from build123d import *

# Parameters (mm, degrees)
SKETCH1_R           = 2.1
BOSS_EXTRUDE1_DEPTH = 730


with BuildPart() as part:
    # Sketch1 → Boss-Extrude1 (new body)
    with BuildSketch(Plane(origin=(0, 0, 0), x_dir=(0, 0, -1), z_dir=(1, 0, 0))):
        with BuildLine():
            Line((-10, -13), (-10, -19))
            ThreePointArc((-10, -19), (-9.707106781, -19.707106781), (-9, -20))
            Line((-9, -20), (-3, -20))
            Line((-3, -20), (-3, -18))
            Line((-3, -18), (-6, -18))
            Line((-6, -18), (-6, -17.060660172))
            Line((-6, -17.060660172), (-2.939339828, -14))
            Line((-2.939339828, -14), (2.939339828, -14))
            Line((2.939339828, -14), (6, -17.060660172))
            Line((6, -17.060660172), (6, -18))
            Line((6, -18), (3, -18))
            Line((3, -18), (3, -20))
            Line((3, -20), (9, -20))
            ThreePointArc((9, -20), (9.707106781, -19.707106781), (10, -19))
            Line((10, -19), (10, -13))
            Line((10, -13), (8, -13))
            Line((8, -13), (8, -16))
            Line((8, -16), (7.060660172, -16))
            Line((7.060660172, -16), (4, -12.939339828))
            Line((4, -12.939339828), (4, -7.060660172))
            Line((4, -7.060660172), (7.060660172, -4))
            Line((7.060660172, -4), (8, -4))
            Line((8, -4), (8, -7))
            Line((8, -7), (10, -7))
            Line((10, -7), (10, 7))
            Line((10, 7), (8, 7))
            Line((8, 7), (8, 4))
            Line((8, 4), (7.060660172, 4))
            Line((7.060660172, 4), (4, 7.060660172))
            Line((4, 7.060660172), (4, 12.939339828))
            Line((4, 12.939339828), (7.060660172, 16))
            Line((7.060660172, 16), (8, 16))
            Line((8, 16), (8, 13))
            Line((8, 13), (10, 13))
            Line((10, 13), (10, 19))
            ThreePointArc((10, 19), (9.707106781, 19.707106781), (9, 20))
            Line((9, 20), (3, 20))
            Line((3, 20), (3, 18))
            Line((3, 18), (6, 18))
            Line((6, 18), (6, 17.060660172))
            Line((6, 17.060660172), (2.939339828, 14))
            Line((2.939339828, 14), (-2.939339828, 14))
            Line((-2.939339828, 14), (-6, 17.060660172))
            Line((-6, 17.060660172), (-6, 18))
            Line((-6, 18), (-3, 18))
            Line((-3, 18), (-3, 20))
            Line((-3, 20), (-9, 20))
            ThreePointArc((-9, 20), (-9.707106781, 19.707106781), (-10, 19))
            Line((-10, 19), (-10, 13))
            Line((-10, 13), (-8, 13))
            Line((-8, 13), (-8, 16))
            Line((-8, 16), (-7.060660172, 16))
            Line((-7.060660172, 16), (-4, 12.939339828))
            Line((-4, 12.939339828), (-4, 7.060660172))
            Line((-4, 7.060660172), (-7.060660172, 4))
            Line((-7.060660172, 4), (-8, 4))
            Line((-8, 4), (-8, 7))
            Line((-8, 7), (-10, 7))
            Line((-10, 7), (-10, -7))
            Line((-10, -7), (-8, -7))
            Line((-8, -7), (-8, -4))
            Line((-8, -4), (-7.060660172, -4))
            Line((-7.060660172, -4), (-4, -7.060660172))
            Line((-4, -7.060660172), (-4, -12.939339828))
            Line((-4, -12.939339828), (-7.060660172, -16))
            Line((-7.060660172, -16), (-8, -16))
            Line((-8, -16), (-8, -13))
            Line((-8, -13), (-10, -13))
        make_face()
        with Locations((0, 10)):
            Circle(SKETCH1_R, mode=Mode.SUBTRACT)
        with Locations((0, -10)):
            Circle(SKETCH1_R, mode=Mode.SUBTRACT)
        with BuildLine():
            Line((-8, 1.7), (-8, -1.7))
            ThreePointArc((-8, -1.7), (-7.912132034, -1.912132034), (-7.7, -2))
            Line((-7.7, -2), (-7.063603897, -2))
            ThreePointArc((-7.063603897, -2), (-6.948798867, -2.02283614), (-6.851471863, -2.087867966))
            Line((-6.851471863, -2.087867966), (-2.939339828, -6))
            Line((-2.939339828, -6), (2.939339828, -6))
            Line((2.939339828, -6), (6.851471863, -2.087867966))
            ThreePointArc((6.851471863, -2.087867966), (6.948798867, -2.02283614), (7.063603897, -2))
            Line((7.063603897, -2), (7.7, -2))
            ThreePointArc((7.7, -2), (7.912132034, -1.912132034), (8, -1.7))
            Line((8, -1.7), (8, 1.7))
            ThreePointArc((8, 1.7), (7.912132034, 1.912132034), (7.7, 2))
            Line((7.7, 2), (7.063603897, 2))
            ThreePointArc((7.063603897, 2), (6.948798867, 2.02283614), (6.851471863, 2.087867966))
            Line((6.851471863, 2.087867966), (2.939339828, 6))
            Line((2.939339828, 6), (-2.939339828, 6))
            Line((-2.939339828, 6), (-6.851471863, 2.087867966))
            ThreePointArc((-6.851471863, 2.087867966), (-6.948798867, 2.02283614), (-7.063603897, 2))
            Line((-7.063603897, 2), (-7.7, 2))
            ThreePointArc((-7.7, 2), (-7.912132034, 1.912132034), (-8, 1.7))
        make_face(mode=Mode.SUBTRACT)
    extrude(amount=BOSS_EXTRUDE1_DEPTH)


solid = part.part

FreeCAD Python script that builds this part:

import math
import FreeCAD as App
import Part
import Sketcher
from FreeCAD import Vector

doc = App.newDocument("Part")
body = doc.addObject("PartDesign::Body", "Body")

# Sketch on YZ plane
sketch1 = doc.addObject("Sketcher::SketchObject", "Sketch")
body.addObject(sketch1)
sketch1.AttachmentSupport = (doc.YZ_Plane, [""])
sketch1.MapMode = "FlatFace"
sketch1.addGeometry([
    Part.LineSegment(Vector(-13, 10, 0), Vector(-19, 10, 0)),  # 0
    Part.ArcOfCircle(Part.Circle(Vector(-19, 9, 0), Vector(0, 0, 1), 1), math.radians(90), math.radians(180)),  # 1
    Part.LineSegment(Vector(-20, 9, 0), Vector(-20, 3, 0)),  # 2
    Part.LineSegment(Vector(-20, 3, 0), Vector(-18, 3, 0)),  # 3
    Part.LineSegment(Vector(-18, 3, 0), Vector(-18, 6, 0)),  # 4
    Part.LineSegment(Vector(-18, 6, 0), Vector(-17.06, 6, 0)),  # 5
    Part.LineSegment(Vector(-17.06, 6, 0), Vector(-14, 2.94, 0)),  # 6
    Part.LineSegment(Vector(-14, 2.94, 0), Vector(-14, -2.94, 0)),  # 7
    Part.LineSegment(Vector(-14, -2.94, 0), Vector(-17.06, -6, 0)),  # 8
    Part.LineSegment(Vector(-17.06, -6, 0), Vector(-18, -6, 0)),  # 9
    Part.LineSegment(Vector(-18, -6, 0), Vector(-18, -3, 0)),  # 10
    Part.LineSegment(Vector(-18, -3, 0), Vector(-20, -3, 0)),  # 11
    Part.LineSegment(Vector(-20, -3, 0), Vector(-20, -9, 0)),  # 12
    Part.ArcOfCircle(Part.Circle(Vector(-19, -9, 0), Vector(0, 0, 1), 1), math.radians(-180), math.radians(-90)),  # 13
    Part.LineSegment(Vector(-19, -10, 0), Vector(-13, -10, 0)),  # 14
    Part.LineSegment(Vector(-13, -10, 0), Vector(-13, -8, 0)),  # 15
    Part.LineSegment(Vector(-13, -8, 0), Vector(-16, -8, 0)),  # 16
    Part.LineSegment(Vector(-16, -8, 0), Vector(-16, -7.06, 0)),  # 17
    Part.LineSegment(Vector(-16, -7.06, 0), Vector(-12.94, -4, 0)),  # 18
    Part.LineSegment(Vector(-12.94, -4, 0), Vector(-7.06, -4, 0)),  # 19
    Part.LineSegment(Vector(-7.06, -4, 0), Vector(-4, -7.06, 0)),  # 20
    Part.LineSegment(Vector(-4, -7.06, 0), Vector(-4, -8, 0)),  # 21
    Part.LineSegment(Vector(-4, -8, 0), Vector(-7, -8, 0)),  # 22
    Part.LineSegment(Vector(-7, -8, 0), Vector(-7, -10, 0)),  # 23
    Part.LineSegment(Vector(-7, -10, 0), Vector(7, -10, 0)),  # 24
    Part.LineSegment(Vector(7, -10, 0), Vector(7, -8, 0)),  # 25
    Part.LineSegment(Vector(7, -8, 0), Vector(4, -8, 0)),  # 26
    Part.LineSegment(Vector(4, -8, 0), Vector(4, -7.06, 0)),  # 27
    Part.LineSegment(Vector(4, -7.06, 0), Vector(7.06, -4, 0)),  # 28
    Part.LineSegment(Vector(7.06, -4, 0), Vector(12.94, -4, 0)),  # 29
    Part.LineSegment(Vector(12.94, -4, 0), Vector(16, -7.06, 0)),  # 30
    Part.LineSegment(Vector(16, -7.06, 0), Vector(16, -8, 0)),  # 31
    Part.LineSegment(Vector(16, -8, 0), Vector(13, -8, 0)),  # 32
    Part.LineSegment(Vector(13, -8, 0), Vector(13, -10, 0)),  # 33
    Part.LineSegment(Vector(13, -10, 0), Vector(19, -10, 0)),  # 34
    Part.ArcOfCircle(Part.Circle(Vector(19, -9, 0), Vector(0, 0, 1), 1), math.radians(-90), math.radians(0)),  # 35
    Part.LineSegment(Vector(20, -9, 0), Vector(20, -3, 0)),  # 36
    Part.LineSegment(Vector(20, -3, 0), Vector(18, -3, 0)),  # 37
    Part.LineSegment(Vector(18, -3, 0), Vector(18, -6, 0)),  # 38
    Part.LineSegment(Vector(18, -6, 0), Vector(17.06, -6, 0)),  # 39
    Part.LineSegment(Vector(17.06, -6, 0), Vector(14, -2.94, 0)),  # 40
    Part.LineSegment(Vector(14, -2.94, 0), Vector(14, 2.94, 0)),  # 41
    Part.LineSegment(Vector(14, 2.94, 0), Vector(17.06, 6, 0)),  # 42
    Part.LineSegment(Vector(17.06, 6, 0), Vector(18, 6, 0)),  # 43
    Part.LineSegment(Vector(18, 6, 0), Vector(18, 3, 0)),  # 44
    Part.LineSegment(Vector(18, 3, 0), Vector(20, 3, 0)),  # 45
    Part.LineSegment(Vector(20, 3, 0), Vector(20, 9, 0)),  # 46
    Part.ArcOfCircle(Part.Circle(Vector(19, 9, 0), Vector(0, 0, 1), 1), math.radians(0), math.radians(90)),  # 47
    Part.LineSegment(Vector(19, 10, 0), Vector(13, 10, 0)),  # 48
    Part.LineSegment(Vector(13, 10, 0), Vector(13, 8, 0)),  # 49
    Part.LineSegment(Vector(13, 8, 0), Vector(16, 8, 0)),  # 50
    Part.LineSegment(Vector(16, 8, 0), Vector(16, 7.06, 0)),  # 51
    Part.LineSegment(Vector(16, 7.06, 0), Vector(12.94, 4, 0)),  # 52
    Part.LineSegment(Vector(12.94, 4, 0), Vector(7.06, 4, 0)),  # 53
    Part.LineSegment(Vector(7.06, 4, 0), Vector(4, 7.06, 0)),  # 54
    Part.LineSegment(Vector(4, 7.06, 0), Vector(4, 8, 0)),  # 55
    Part.LineSegment(Vector(4, 8, 0), Vector(7, 8, 0)),  # 56
    Part.LineSegment(Vector(7, 8, 0), Vector(7, 10, 0)),  # 57
    Part.LineSegment(Vector(7, 10, 0), Vector(-7, 10, 0)),  # 58
    Part.LineSegment(Vector(-7, 10, 0), Vector(-7, 8, 0)),  # 59
    Part.LineSegment(Vector(-7, 8, 0), Vector(-4, 8, 0)),  # 60
    Part.LineSegment(Vector(-4, 8, 0), Vector(-4, 7.06, 0)),  # 61
    Part.LineSegment(Vector(-4, 7.06, 0), Vector(-7.06, 4, 0)),  # 62
    Part.LineSegment(Vector(-7.06, 4, 0), Vector(-12.94, 4, 0)),  # 63
    Part.LineSegment(Vector(-12.94, 4, 0), Vector(-16, 7.06, 0)),  # 64
    Part.LineSegment(Vector(-16, 7.06, 0), Vector(-16, 8, 0)),  # 65
    Part.LineSegment(Vector(-16, 8, 0), Vector(-13, 8, 0)),  # 66
    Part.LineSegment(Vector(-13, 8, 0), Vector(-13, 10, 0)),  # 67
    Part.Circle(Vector(-10, 0, 0), Vector(0, 0, 1), 2.1),  # 68
    Part.LineSegment(Vector(-1.7, 8, 0), Vector(1.7, 8, 0)),  # 69
    Part.ArcOfCircle(Part.Circle(Vector(1.7, 7.7, 0), Vector(0, 0, 1), 0.3), math.radians(0), math.radians(90)),  # 70
    Part.LineSegment(Vector(2, 7.7, 0), Vector(2, 7.06, 0)),  # 71
    Part.ArcOfCircle(Part.Circle(Vector(2.3, 7.06, 0), Vector(0, 0, 1), 0.3), math.radians(180), math.radians(225)),  # 72
    Part.LineSegment(Vector(2.09, 6.85, 0), Vector(6, 2.94, 0)),  # 73
    Part.LineSegment(Vector(6, 2.94, 0), Vector(6, -2.94, 0)),  # 74
    Part.LineSegment(Vector(6, -2.94, 0), Vector(2.09, -6.85, 0)),  # 75
    Part.ArcOfCircle(Part.Circle(Vector(2.3, -7.06, 0), Vector(0, 0, 1), 0.3), math.radians(135), math.radians(180)),  # 76
    Part.LineSegment(Vector(2, -7.06, 0), Vector(2, -7.7, 0)),  # 77
    Part.ArcOfCircle(Part.Circle(Vector(1.7, -7.7, 0), Vector(0, 0, 1), 0.3), math.radians(-90), math.radians(0)),  # 78
    Part.LineSegment(Vector(1.7, -8, 0), Vector(-1.7, -8, 0)),  # 79
    Part.ArcOfCircle(Part.Circle(Vector(-1.7, -7.7, 0), Vector(0, 0, 1), 0.3), math.radians(-180), math.radians(-90)),  # 80
    Part.LineSegment(Vector(-2, -7.7, 0), Vector(-2, -7.06, 0)),  # 81
    Part.ArcOfCircle(Part.Circle(Vector(-2.3, -7.06, 0), Vector(0, 0, 1), 0.3), math.radians(0), math.radians(45)),  # 82
    Part.LineSegment(Vector(-2.09, -6.85, 0), Vector(-6, -2.94, 0)),  # 83
    Part.LineSegment(Vector(-6, -2.94, 0), Vector(-6, 2.94, 0)),  # 84
    Part.LineSegment(Vector(-6, 2.94, 0), Vector(-2.09, 6.85, 0)),  # 85
    Part.ArcOfCircle(Part.Circle(Vector(-2.3, 7.06, 0), Vector(0, 0, 1), 0.3), math.radians(-45), math.radians(0)),  # 86
    Part.LineSegment(Vector(-2, 7.06, 0), Vector(-2, 7.7, 0)),  # 87
    Part.ArcOfCircle(Part.Circle(Vector(-1.7, 7.7, 0), Vector(0, 0, 1), 0.3), math.radians(90), math.radians(180)),  # 88
    Part.Circle(Vector(10, 0, 0), Vector(0, 0, 1), 2.1),  # 89
], False)
sketch1.addConstraint([
    Sketcher.Constraint("Tangent", 0, 2, 1, 1),
    Sketcher.Constraint("Tangent", 1, 2, 2, 1),
    Sketcher.Constraint("Coincident", 2, 2, 3, 1),
    Sketcher.Constraint("Coincident", 3, 2, 4, 1),
    Sketcher.Constraint("Coincident", 4, 2, 5, 1),
    Sketcher.Constraint("Coincident", 5, 2, 6, 1),
    Sketcher.Constraint("Coincident", 6, 2, 7, 1),
    Sketcher.Constraint("Coincident", 7, 2, 8, 1),
    Sketcher.Constraint("Coincident", 8, 2, 9, 1),
    Sketcher.Constraint("Coincident", 9, 2, 10, 1),
    Sketcher.Constraint("Coincident", 10, 2, 11, 1),
    Sketcher.Constraint("Coincident", 11, 2, 12, 1),
    Sketcher.Constraint("Tangent", 12, 2, 13, 1),
    Sketcher.Constraint("Tangent", 13, 2, 14, 1),
    Sketcher.Constraint("Coincident", 14, 2, 15, 1),
    Sketcher.Constraint("Coincident", 15, 2, 16, 1),
    Sketcher.Constraint("Coincident", 16, 2, 17, 1),
    Sketcher.Constraint("Coincident", 17, 2, 18, 1),
    Sketcher.Constraint("Coincident", 18, 2, 19, 1),
    Sketcher.Constraint("Coincident", 19, 2, 20, 1),
    Sketcher.Constraint("Coincident", 20, 2, 21, 1),
    Sketcher.Constraint("Coincident", 21, 2, 22, 1),
    Sketcher.Constraint("Coincident", 22, 2, 23, 1),
    Sketcher.Constraint("Coincident", 23, 2, 24, 1),
    Sketcher.Constraint("Coincident", 24, 2, 25, 1),
    Sketcher.Constraint("Coincident", 25, 2, 26, 1),
    Sketcher.Constraint("Coincident", 26, 2, 27, 1),
    Sketcher.Constraint("Coincident", 27, 2, 28, 1),
    Sketcher.Constraint("Coincident", 28, 2, 29, 1),
    Sketcher.Constraint("Coincident", 29, 2, 30, 1),
    Sketcher.Constraint("Coincident", 30, 2, 31, 1),
    Sketcher.Constraint("Coincident", 31, 2, 32, 1),
    Sketcher.Constraint("Coincident", 32, 2, 33, 1),
    Sketcher.Constraint("Coincident", 33, 2, 34, 1),
    Sketcher.Constraint("Tangent", 34, 2, 35, 1),
    Sketcher.Constraint("Tangent", 35, 2, 36, 1),
    Sketcher.Constraint("Coincident", 36, 2, 37, 1),
    Sketcher.Constraint("Coincident", 37, 2, 38, 1),
    Sketcher.Constraint("Coincident", 38, 2, 39, 1),
    Sketcher.Constraint("Coincident", 39, 2, 40, 1),
    Sketcher.Constraint("Coincident", 40, 2, 41, 1),
    Sketcher.Constraint("Coincident", 41, 2, 42, 1),
    Sketcher.Constraint("Coincident", 42, 2, 43, 1),
    Sketcher.Constraint("Coincident", 43, 2, 44, 1),
    Sketcher.Constraint("Coincident", 44, 2, 45, 1),
    Sketcher.Constraint("Coincident", 45, 2, 46, 1),
    Sketcher.Constraint("Tangent", 46, 2, 47, 1),
    Sketcher.Constraint("Tangent", 47, 2, 48, 1),
    Sketcher.Constraint("Coincident", 48, 2, 49, 1),
    Sketcher.Constraint("Coincident", 49, 2, 50, 1),
    Sketcher.Constraint("Coincident", 50, 2, 51, 1),
    Sketcher.Constraint("Coincident", 51, 2, 52, 1),
    Sketcher.Constraint("Coincident", 52, 2, 53, 1),
    Sketcher.Constraint("Coincident", 53, 2, 54, 1),
    Sketcher.Constraint("Coincident", 54, 2, 55, 1),
    Sketcher.Constraint("Coincident", 55, 2, 56, 1),
    Sketcher.Constraint("Coincident", 56, 2, 57, 1),
    Sketcher.Constraint("Coincident", 57, 2, 58, 1),
    Sketcher.Constraint("Coincident", 58, 2, 59, 1),
    Sketcher.Constraint("Coincident", 59, 2, 60, 1),
    Sketcher.Constraint("Coincident", 60, 2, 61, 1),
    Sketcher.Constraint("Coincident", 61, 2, 62, 1),
    Sketcher.Constraint("Coincident", 62, 2, 63, 1),
    Sketcher.Constraint("Coincident", 63, 2, 64, 1),
    Sketcher.Constraint("Coincident", 64, 2, 65, 1),
    Sketcher.Constraint("Coincident", 65, 2, 66, 1),
    Sketcher.Constraint("Coincident", 66, 2, 67, 1),
    Sketcher.Constraint("Coincident", 67, 2, 0, 1),
    Sketcher.Constraint("Tangent", 69, 2, 70, 2),
    Sketcher.Constraint("Tangent", 70, 1, 71, 1),
    Sketcher.Constraint("Tangent", 71, 2, 72, 1),
    Sketcher.Constraint("Tangent", 72, 2, 73, 1),
    Sketcher.Constraint("Coincident", 73, 2, 74, 1),
    Sketcher.Constraint("Coincident", 74, 2, 75, 1),
    Sketcher.Constraint("Tangent", 75, 2, 76, 1),
    Sketcher.Constraint("Tangent", 76, 2, 77, 1),
    Sketcher.Constraint("Tangent", 77, 2, 78, 2),
    Sketcher.Constraint("Tangent", 78, 1, 79, 1),
    Sketcher.Constraint("Tangent", 79, 2, 80, 2),
    Sketcher.Constraint("Tangent", 80, 1, 81, 1),
    Sketcher.Constraint("Tangent", 81, 2, 82, 1),
    Sketcher.Constraint("Tangent", 82, 2, 83, 1),
    Sketcher.Constraint("Coincident", 83, 2, 84, 1),
    Sketcher.Constraint("Coincident", 84, 2, 85, 1),
    Sketcher.Constraint("Tangent", 85, 2, 86, 1),
    Sketcher.Constraint("Tangent", 86, 2, 87, 1),
    Sketcher.Constraint("Tangent", 87, 2, 88, 2),
    Sketcher.Constraint("Tangent", 88, 1, 69, 1),
    Sketcher.Constraint("Horizontal", 0),
    Sketcher.Constraint("Vertical", 2),
    Sketcher.Constraint("Horizontal", 3),
    Sketcher.Constraint("Vertical", 4),
    Sketcher.Constraint("Horizontal", 5),
    Sketcher.Constraint("Vertical", 7),
    Sketcher.Constraint("Horizontal", 9),
    Sketcher.Constraint("Vertical", 10),
    Sketcher.Constraint("Horizontal", 11),
    Sketcher.Constraint("Vertical", 12),
    Sketcher.Constraint("Horizontal", 14),
    Sketcher.Constraint("Vertical", 15),
    Sketcher.Constraint("Horizontal", 16),
    Sketcher.Constraint("Vertical", 17),
    Sketcher.Constraint("Horizontal", 19),
    Sketcher.Constraint("Vertical", 21),
    Sketcher.Constraint("Horizontal", 22),
    Sketcher.Constraint("Vertical", 23),
    Sketcher.Constraint("Horizontal", 24),
    Sketcher.Constraint("Vertical", 25),
    Sketcher.Constraint("Horizontal", 26),
    Sketcher.Constraint("Vertical", 27),
    Sketcher.Constraint("Horizontal", 29),
    Sketcher.Constraint("Vertical", 31),
    Sketcher.Constraint("Horizontal", 32),
    Sketcher.Constraint("Vertical", 33),
    Sketcher.Constraint("Horizontal", 34),
    Sketcher.Constraint("Vertical", 36),
    Sketcher.Constraint("Horizontal", 37),
    Sketcher.Constraint("Vertical", 38),
    Sketcher.Constraint("Horizontal", 39),
    Sketcher.Constraint("Vertical", 41),
    Sketcher.Constraint("Horizontal", 43),
    Sketcher.Constraint("Vertical", 44),
    Sketcher.Constraint("Horizontal", 45),
    Sketcher.Constraint("Vertical", 46),
    Sketcher.Constraint("Horizontal", 48),
    Sketcher.Constraint("Vertical", 49),
    Sketcher.Constraint("Horizontal", 50),
    Sketcher.Constraint("Vertical", 51),
    Sketcher.Constraint("Horizontal", 53),
    Sketcher.Constraint("Vertical", 55),
    Sketcher.Constraint("Horizontal", 56),
    Sketcher.Constraint("Vertical", 57),
    Sketcher.Constraint("Horizontal", 58),
    Sketcher.Constraint("Vertical", 59),
    Sketcher.Constraint("Horizontal", 60),
    Sketcher.Constraint("Vertical", 61),
    Sketcher.Constraint("Horizontal", 63),
    Sketcher.Constraint("Vertical", 65),
    Sketcher.Constraint("Horizontal", 66),
    Sketcher.Constraint("Vertical", 67),
    Sketcher.Constraint("Horizontal", 69),
    Sketcher.Constraint("Vertical", 71),
    Sketcher.Constraint("Vertical", 74),
    Sketcher.Constraint("Vertical", 77),
    Sketcher.Constraint("Horizontal", 79),
    Sketcher.Constraint("Vertical", 81),
    Sketcher.Constraint("Vertical", 84),
    Sketcher.Constraint("Vertical", 87),
    Sketcher.Constraint("Equal", 1, 13),
    Sketcher.Constraint("Equal", 13, 35),
    Sketcher.Constraint("Equal", 35, 47),
    Sketcher.Constraint("Equal", 70, 72),
    Sketcher.Constraint("Equal", 72, 76),
    Sketcher.Constraint("Equal", 76, 78),
    Sketcher.Constraint("Equal", 78, 80),
    Sketcher.Constraint("Equal", 80, 82),
    Sketcher.Constraint("Equal", 82, 86),
    Sketcher.Constraint("Equal", 86, 88),
    Sketcher.Constraint("Equal", 68, 89),
    Sketcher.Constraint("Symmetric", 1, 3, 35, 3, -1, 1),
    Sketcher.Constraint("Symmetric", 13, 3, 47, 3, -1, 1),
    Sketcher.Constraint("Symmetric", 70, 3, 80, 3, -1, 1),
    Sketcher.Constraint("Symmetric", 76, 3, 86, 3, -1, 1),
    Sketcher.Constraint("Symmetric", 68, 3, 89, 3, -1, 1),
    Sketcher.Constraint("Symmetric", 3, 2, 37, 2, -1, 1),
    Sketcher.Constraint("Symmetric", 5, 2, 39, 2, -1, 1),
    Sketcher.Constraint("Symmetric", 6, 2, 40, 2, -1, 1),
    Sketcher.Constraint("Symmetric", 8, 2, 42, 2, -1, 1),
    Sketcher.Constraint("Symmetric", 10, 2, 44, 2, -1, 1),
    Sketcher.Constraint("Symmetric", 15, 2, 49, 2, -1, 1),
    Sketcher.Constraint("Symmetric", 17, 2, 51, 2, -1, 1),
    Sketcher.Constraint("Symmetric", 18, 2, 52, 2, -1, 1),
    Sketcher.Constraint("Symmetric", 20, 2, 54, 2, -1, 1),
    Sketcher.Constraint("Symmetric", 22, 2, 56, 2, -1, 1),
    Sketcher.Constraint("Symmetric", 24, 2, 58, 2, -1, 1),
    Sketcher.Constraint("Symmetric", 26, 2, 60, 2, -1, 1),
    Sketcher.Constraint("Symmetric", 28, 2, 62, 2, -1, 1),
    Sketcher.Constraint("Symmetric", 30, 2, 64, 2, -1, 1),
    Sketcher.Constraint("Symmetric", 32, 2, 66, 2, -1, 1),
    Sketcher.Constraint("Symmetric", 72, 2, 82, 2, -1, 1),
    Sketcher.Constraint("Symmetric", 74, 2, 84, 2, -1, 1),
    Sketcher.Constraint("Symmetric", 13, 3, 35, 3, -2),
    Sketcher.Constraint("Symmetric", 76, 3, 82, 3, -2),
    Sketcher.Constraint("Symmetric", 22, 2, 25, 2, -2),
    Sketcher.Constraint("Symmetric", 20, 2, 27, 2, -2),
    Sketcher.Constraint("Symmetric", 19, 2, 28, 2, -2),
    Sketcher.Constraint("Symmetric", 17, 2, 30, 2, -2),
    Sketcher.Constraint("Symmetric", 15, 2, 32, 2, -2),
    Sketcher.Constraint("Symmetric", 10, 2, 37, 2, -2),
    Sketcher.Constraint("Symmetric", 8, 2, 39, 2, -2),
    Sketcher.Constraint("PointOnObject", 68, 3, -1),
    Sketcher.Constraint("Perpendicular", 6, 8),
    Sketcher.Constraint("Parallel", 8, 18),
    Sketcher.Constraint("Perpendicular", 18, 20),
    Sketcher.Constraint("Perpendicular", 20, 28),
    Sketcher.Constraint("Perpendicular", 28, 30),
    Sketcher.Constraint("Perpendicular", 40, 42),
    Sketcher.Constraint("Perpendicular", 52, 54),
    Sketcher.Constraint("Perpendicular", 54, 62),
    Sketcher.Constraint("Perpendicular", 62, 64),
    Sketcher.Constraint("Parallel", 64, 73),
    Sketcher.Constraint("Perpendicular", 73, 75),
    Sketcher.Constraint("Horizontal", 17, 2, 20, 2),
    Sketcher.Constraint("Horizontal", 16, 2, 21, 2),
    Sketcher.Constraint("Horizontal", 14, 2, 23, 2),
    Sketcher.Constraint("Horizontal", 66, 2, 69, 2),
    Sketcher.Constraint("Horizontal", 41, 2, 73, 2),
    Sketcher.Constraint("Equal", 16, 22),
    Sketcher.Constraint("Equal", 48, 2),
    Sketcher.Constraint("Equal", 66, 4),
    Sketcher.Constraint("Equal", 63, 7),
    Sketcher.Constraint("Equal", 45, 15),
    Sketcher.Constraint("Equal", 43, 17),
    Sketcher.Constraint("Equal", 8, 18),
    Sketcher.Constraint("Radius", 1, 1.0),
    Sketcher.Constraint("Diameter", 68, 4.2),
    Sketcher.Constraint("Radius", 70, 0.3),
    Sketcher.Constraint("DistanceX", 0, 2, 0, 1, 6.0),
    Sketcher.Constraint("DistanceX", 3, 1, 3, 2, 2.0),
    Sketcher.Constraint("DistanceX", 16, 2, 16, 1, 3.0),
    Sketcher.Constraint("DistanceX", 24, 1, 24, 2, 14.0),
    Sketcher.Constraint("DistanceX", 69, 1, 69, 2, 3.4),
    Sketcher.Constraint("DistanceX", 1, 3, -1, 1, 19.0),
    Sketcher.Constraint("DistanceX", 68, 3, -1, 1, 10.0),
    Sketcher.Constraint("DistanceX", 6, 2, -1, 1, 14.0),
    Sketcher.Constraint("DistanceX", -1, 1, 73, 2, 6.0),
    Sketcher.Constraint("DistanceX", 5, 1, 5, 2, 0.93934),
])
pad1 = doc.addObject("PartDesign::Pad", "Pad")
body.addObject(pad1)
pad1.Profile = sketch1
pad1.Length = 730

doc.recompute()
